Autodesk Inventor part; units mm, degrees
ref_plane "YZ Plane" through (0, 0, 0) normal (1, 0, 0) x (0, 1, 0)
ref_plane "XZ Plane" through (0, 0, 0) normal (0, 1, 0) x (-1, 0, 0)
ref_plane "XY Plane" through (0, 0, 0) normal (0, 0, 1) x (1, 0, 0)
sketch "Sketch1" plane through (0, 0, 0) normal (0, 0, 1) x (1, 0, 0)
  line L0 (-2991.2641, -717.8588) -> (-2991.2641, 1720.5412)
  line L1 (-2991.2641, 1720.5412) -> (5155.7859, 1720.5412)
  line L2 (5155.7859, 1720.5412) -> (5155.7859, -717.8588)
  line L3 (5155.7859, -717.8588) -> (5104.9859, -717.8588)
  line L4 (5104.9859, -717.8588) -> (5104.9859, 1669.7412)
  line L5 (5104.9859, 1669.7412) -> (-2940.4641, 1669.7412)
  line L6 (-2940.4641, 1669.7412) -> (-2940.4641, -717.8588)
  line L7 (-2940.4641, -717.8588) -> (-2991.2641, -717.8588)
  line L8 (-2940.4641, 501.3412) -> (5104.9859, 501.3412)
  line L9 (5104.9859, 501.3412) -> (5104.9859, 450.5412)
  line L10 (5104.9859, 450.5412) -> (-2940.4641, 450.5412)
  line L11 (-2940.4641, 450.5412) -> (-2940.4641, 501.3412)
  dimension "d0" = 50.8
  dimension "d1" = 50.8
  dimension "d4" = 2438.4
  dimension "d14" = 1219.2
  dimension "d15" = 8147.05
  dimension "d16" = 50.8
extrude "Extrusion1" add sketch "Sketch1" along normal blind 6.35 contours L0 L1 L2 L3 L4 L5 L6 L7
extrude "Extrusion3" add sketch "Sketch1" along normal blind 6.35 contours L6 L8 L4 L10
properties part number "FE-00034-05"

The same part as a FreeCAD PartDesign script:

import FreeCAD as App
import Part
import Sketcher
Q = App.Units.Quantity

doc = App.newDocument("Part")
body = doc.addObject("PartDesign::Body", "Body")

sketch1 = doc.addObject("Sketcher::SketchObject", "Sketch")
body.addObject(sketch1)
sketch1.AttachmentSupport = (doc.XY_Plane, [""])
sketch1.MapMode = "FlatFace"
sketch1.addGeometry(Part.LineSegment(App.Vector(-2991, 1721, 0), App.Vector(-2991, -718, 0)), False)
sketch1.addGeometry(Part.LineSegment(App.Vector(-2991, -718, 0), App.Vector(-2940, -718, 0)), False)
sketch1.addGeometry(Part.LineSegment(App.Vector(-2940, -718, 0), App.Vector(-2940, 1670, 0)), False)
sketch1.addGeometry(Part.LineSegment(App.Vector(-2940, 1670, 0), App.Vector(5105, 1670, 0)), False)
sketch1.addGeometry(Part.LineSegment(App.Vector(5105, 1670, 0), App.Vector(5105, -718, 0)), False)
sketch1.addGeometry(Part.LineSegment(App.Vector(5105, -718, 0), App.Vector(5156, -718, 0)), False)
sketch1.addGeometry(Part.LineSegment(App.Vector(5156, -718, 0), App.Vector(5156, 1721, 0)), False)
sketch1.addGeometry(Part.LineSegment(App.Vector(5156, 1721, 0), App.Vector(-2991, 1721, 0)), False)
sketch1.addConstraint(Sketcher.Constraint("Coincident", 0, 2, 1, 1))
sketch1.addConstraint(Sketcher.Constraint("Coincident", 1, 2, 2, 1))
sketch1.addConstraint(Sketcher.Constraint("Coincident", 2, 2, 3, 1))
sketch1.addConstraint(Sketcher.Constraint("Coincident", 3, 2, 4, 1))
sketch1.addConstraint(Sketcher.Constraint("Coincident", 4, 2, 5, 1))
sketch1.addConstraint(Sketcher.Constraint("Coincident", 5, 2, 6, 1))
sketch1.addConstraint(Sketcher.Constraint("Coincident", 6, 2, 7, 1))
sketch1.addConstraint(Sketcher.Constraint("Coincident", 7, 2, 0, 1))
sketch1.addConstraint(Sketcher.Constraint("Vertical", 0))
sketch1.addConstraint(Sketcher.Constraint("Horizontal", 1))
sketch1.addConstraint(Sketcher.Constraint("Vertical", 2))
sketch1.addConstraint(Sketcher.Constraint("Horizontal", 3))
sketch1.addConstraint(Sketcher.Constraint("Vertical", 4))
sketch1.addConstraint(Sketcher.Constraint("Horizontal", 5))
sketch1.addConstraint(Sketcher.Constraint("Vertical", 6))
sketch1.addConstraint(Sketcher.Constraint("Horizontal", 7))
sketch1.addConstraint(Sketcher.Constraint("Horizontal", 1, 2, 4, 2))
sketch1.addConstraint(Sketcher.Constraint("Equal", 1, 5))
sketch1.addConstraint(Sketcher.Constraint("DistanceX", 1, 1, 1, 2, Q("2 in")))
sketch1.addConstraint(Sketcher.Constraint("DistanceY", 0, 2, 0, 1, Q("96 in")))
sketch1.addConstraint(Sketcher.Constraint("DistanceY", 3, 2, 6, 2, Q("2 in")))
sketch1.addConstraint(Sketcher.Constraint("DistanceX", 7, 2, 7, 1, Q("320.75 in")))
sketch1.addConstraint(Sketcher.Constraint("DistanceX", 0, 2, -1, 1, Q("117.7663 in")))
sketch1.addConstraint(Sketcher.Constraint("DistanceY", 0, 2, -1, 1, Q("717.8588 mm")))
pad1 = doc.addObject("PartDesign::Pad", "Pad")
body.addObject(pad1)
pad1.Profile = sketch1
pad1.Length = Q("0.25 in")

sketch2 = doc.addObject("Sketcher::SketchObject", "Sketch001")
body.addObject(sketch2)
sketch2.AttachmentSupport = (doc.XY_Plane, [""])
sketch2.MapMode = "FlatFace"
sketch2.addGeometry(Part.LineSegment(App.Vector(-2940, 501, 0), App.Vector(-2940, 451, 0)), False)
sketch2.addGeometry(Part.LineSegment(App.Vector(-2940, 451, 0), App.Vector(5105, 451, 0)), False)
sketch2.addGeometry(Part.LineSegment(App.Vector(5105, 451, 0), App.Vector(5105, 501, 0)), False)
sketch2.addGeometry(Part.LineSegment(App.Vector(5105, 501, 0), App.Vector(-2940, 501, 0)), False)
sketch2.addConstraint(Sketcher.Constraint("Coincident", 0, 2, 1, 1))
sketch2.addConstraint(Sketcher.Constraint("Coincident", 1, 2, 2, 1))
sketch2.addConstraint(Sketcher.Constraint("Coincident", 2, 2, 3, 1))
sketch2.addConstraint(Sketcher.Constraint("Coincident", 3, 2, 0, 1))
sketch2.addConstraint(Sketcher.Constraint("Vertical", 0))
sketch2.addConstraint(Sketcher.Constraint("Horizontal", 1))
sketch2.addConstraint(Sketcher.Constraint("Vertical", 2))
sketch2.addConstraint(Sketcher.Constraint("Horizontal", 3))
sketch2.addConstraint(Sketcher.Constraint("DistanceY", 0, 2, 0, 1, Q("2 in")))
sketch2.addConstraint(Sketcher.Constraint("DistanceX", 1, 1, 1, 2, Q("316.75 in")))
sketch2.addConstraint(Sketcher.Constraint("DistanceX", 0, 2, -1, 1, Q("115.7663 in")))
sketch2.addConstraint(Sketcher.Constraint("DistanceY", -1, 1, 0, 2, Q("450.5412 mm")))
pad2 = doc.addObject("PartDesign::Pad", "Pad001")
body.addObject(pad2)
pad2.Profile = sketch2
pad2.Length = Q("0.25 in")

doc.recompute()
